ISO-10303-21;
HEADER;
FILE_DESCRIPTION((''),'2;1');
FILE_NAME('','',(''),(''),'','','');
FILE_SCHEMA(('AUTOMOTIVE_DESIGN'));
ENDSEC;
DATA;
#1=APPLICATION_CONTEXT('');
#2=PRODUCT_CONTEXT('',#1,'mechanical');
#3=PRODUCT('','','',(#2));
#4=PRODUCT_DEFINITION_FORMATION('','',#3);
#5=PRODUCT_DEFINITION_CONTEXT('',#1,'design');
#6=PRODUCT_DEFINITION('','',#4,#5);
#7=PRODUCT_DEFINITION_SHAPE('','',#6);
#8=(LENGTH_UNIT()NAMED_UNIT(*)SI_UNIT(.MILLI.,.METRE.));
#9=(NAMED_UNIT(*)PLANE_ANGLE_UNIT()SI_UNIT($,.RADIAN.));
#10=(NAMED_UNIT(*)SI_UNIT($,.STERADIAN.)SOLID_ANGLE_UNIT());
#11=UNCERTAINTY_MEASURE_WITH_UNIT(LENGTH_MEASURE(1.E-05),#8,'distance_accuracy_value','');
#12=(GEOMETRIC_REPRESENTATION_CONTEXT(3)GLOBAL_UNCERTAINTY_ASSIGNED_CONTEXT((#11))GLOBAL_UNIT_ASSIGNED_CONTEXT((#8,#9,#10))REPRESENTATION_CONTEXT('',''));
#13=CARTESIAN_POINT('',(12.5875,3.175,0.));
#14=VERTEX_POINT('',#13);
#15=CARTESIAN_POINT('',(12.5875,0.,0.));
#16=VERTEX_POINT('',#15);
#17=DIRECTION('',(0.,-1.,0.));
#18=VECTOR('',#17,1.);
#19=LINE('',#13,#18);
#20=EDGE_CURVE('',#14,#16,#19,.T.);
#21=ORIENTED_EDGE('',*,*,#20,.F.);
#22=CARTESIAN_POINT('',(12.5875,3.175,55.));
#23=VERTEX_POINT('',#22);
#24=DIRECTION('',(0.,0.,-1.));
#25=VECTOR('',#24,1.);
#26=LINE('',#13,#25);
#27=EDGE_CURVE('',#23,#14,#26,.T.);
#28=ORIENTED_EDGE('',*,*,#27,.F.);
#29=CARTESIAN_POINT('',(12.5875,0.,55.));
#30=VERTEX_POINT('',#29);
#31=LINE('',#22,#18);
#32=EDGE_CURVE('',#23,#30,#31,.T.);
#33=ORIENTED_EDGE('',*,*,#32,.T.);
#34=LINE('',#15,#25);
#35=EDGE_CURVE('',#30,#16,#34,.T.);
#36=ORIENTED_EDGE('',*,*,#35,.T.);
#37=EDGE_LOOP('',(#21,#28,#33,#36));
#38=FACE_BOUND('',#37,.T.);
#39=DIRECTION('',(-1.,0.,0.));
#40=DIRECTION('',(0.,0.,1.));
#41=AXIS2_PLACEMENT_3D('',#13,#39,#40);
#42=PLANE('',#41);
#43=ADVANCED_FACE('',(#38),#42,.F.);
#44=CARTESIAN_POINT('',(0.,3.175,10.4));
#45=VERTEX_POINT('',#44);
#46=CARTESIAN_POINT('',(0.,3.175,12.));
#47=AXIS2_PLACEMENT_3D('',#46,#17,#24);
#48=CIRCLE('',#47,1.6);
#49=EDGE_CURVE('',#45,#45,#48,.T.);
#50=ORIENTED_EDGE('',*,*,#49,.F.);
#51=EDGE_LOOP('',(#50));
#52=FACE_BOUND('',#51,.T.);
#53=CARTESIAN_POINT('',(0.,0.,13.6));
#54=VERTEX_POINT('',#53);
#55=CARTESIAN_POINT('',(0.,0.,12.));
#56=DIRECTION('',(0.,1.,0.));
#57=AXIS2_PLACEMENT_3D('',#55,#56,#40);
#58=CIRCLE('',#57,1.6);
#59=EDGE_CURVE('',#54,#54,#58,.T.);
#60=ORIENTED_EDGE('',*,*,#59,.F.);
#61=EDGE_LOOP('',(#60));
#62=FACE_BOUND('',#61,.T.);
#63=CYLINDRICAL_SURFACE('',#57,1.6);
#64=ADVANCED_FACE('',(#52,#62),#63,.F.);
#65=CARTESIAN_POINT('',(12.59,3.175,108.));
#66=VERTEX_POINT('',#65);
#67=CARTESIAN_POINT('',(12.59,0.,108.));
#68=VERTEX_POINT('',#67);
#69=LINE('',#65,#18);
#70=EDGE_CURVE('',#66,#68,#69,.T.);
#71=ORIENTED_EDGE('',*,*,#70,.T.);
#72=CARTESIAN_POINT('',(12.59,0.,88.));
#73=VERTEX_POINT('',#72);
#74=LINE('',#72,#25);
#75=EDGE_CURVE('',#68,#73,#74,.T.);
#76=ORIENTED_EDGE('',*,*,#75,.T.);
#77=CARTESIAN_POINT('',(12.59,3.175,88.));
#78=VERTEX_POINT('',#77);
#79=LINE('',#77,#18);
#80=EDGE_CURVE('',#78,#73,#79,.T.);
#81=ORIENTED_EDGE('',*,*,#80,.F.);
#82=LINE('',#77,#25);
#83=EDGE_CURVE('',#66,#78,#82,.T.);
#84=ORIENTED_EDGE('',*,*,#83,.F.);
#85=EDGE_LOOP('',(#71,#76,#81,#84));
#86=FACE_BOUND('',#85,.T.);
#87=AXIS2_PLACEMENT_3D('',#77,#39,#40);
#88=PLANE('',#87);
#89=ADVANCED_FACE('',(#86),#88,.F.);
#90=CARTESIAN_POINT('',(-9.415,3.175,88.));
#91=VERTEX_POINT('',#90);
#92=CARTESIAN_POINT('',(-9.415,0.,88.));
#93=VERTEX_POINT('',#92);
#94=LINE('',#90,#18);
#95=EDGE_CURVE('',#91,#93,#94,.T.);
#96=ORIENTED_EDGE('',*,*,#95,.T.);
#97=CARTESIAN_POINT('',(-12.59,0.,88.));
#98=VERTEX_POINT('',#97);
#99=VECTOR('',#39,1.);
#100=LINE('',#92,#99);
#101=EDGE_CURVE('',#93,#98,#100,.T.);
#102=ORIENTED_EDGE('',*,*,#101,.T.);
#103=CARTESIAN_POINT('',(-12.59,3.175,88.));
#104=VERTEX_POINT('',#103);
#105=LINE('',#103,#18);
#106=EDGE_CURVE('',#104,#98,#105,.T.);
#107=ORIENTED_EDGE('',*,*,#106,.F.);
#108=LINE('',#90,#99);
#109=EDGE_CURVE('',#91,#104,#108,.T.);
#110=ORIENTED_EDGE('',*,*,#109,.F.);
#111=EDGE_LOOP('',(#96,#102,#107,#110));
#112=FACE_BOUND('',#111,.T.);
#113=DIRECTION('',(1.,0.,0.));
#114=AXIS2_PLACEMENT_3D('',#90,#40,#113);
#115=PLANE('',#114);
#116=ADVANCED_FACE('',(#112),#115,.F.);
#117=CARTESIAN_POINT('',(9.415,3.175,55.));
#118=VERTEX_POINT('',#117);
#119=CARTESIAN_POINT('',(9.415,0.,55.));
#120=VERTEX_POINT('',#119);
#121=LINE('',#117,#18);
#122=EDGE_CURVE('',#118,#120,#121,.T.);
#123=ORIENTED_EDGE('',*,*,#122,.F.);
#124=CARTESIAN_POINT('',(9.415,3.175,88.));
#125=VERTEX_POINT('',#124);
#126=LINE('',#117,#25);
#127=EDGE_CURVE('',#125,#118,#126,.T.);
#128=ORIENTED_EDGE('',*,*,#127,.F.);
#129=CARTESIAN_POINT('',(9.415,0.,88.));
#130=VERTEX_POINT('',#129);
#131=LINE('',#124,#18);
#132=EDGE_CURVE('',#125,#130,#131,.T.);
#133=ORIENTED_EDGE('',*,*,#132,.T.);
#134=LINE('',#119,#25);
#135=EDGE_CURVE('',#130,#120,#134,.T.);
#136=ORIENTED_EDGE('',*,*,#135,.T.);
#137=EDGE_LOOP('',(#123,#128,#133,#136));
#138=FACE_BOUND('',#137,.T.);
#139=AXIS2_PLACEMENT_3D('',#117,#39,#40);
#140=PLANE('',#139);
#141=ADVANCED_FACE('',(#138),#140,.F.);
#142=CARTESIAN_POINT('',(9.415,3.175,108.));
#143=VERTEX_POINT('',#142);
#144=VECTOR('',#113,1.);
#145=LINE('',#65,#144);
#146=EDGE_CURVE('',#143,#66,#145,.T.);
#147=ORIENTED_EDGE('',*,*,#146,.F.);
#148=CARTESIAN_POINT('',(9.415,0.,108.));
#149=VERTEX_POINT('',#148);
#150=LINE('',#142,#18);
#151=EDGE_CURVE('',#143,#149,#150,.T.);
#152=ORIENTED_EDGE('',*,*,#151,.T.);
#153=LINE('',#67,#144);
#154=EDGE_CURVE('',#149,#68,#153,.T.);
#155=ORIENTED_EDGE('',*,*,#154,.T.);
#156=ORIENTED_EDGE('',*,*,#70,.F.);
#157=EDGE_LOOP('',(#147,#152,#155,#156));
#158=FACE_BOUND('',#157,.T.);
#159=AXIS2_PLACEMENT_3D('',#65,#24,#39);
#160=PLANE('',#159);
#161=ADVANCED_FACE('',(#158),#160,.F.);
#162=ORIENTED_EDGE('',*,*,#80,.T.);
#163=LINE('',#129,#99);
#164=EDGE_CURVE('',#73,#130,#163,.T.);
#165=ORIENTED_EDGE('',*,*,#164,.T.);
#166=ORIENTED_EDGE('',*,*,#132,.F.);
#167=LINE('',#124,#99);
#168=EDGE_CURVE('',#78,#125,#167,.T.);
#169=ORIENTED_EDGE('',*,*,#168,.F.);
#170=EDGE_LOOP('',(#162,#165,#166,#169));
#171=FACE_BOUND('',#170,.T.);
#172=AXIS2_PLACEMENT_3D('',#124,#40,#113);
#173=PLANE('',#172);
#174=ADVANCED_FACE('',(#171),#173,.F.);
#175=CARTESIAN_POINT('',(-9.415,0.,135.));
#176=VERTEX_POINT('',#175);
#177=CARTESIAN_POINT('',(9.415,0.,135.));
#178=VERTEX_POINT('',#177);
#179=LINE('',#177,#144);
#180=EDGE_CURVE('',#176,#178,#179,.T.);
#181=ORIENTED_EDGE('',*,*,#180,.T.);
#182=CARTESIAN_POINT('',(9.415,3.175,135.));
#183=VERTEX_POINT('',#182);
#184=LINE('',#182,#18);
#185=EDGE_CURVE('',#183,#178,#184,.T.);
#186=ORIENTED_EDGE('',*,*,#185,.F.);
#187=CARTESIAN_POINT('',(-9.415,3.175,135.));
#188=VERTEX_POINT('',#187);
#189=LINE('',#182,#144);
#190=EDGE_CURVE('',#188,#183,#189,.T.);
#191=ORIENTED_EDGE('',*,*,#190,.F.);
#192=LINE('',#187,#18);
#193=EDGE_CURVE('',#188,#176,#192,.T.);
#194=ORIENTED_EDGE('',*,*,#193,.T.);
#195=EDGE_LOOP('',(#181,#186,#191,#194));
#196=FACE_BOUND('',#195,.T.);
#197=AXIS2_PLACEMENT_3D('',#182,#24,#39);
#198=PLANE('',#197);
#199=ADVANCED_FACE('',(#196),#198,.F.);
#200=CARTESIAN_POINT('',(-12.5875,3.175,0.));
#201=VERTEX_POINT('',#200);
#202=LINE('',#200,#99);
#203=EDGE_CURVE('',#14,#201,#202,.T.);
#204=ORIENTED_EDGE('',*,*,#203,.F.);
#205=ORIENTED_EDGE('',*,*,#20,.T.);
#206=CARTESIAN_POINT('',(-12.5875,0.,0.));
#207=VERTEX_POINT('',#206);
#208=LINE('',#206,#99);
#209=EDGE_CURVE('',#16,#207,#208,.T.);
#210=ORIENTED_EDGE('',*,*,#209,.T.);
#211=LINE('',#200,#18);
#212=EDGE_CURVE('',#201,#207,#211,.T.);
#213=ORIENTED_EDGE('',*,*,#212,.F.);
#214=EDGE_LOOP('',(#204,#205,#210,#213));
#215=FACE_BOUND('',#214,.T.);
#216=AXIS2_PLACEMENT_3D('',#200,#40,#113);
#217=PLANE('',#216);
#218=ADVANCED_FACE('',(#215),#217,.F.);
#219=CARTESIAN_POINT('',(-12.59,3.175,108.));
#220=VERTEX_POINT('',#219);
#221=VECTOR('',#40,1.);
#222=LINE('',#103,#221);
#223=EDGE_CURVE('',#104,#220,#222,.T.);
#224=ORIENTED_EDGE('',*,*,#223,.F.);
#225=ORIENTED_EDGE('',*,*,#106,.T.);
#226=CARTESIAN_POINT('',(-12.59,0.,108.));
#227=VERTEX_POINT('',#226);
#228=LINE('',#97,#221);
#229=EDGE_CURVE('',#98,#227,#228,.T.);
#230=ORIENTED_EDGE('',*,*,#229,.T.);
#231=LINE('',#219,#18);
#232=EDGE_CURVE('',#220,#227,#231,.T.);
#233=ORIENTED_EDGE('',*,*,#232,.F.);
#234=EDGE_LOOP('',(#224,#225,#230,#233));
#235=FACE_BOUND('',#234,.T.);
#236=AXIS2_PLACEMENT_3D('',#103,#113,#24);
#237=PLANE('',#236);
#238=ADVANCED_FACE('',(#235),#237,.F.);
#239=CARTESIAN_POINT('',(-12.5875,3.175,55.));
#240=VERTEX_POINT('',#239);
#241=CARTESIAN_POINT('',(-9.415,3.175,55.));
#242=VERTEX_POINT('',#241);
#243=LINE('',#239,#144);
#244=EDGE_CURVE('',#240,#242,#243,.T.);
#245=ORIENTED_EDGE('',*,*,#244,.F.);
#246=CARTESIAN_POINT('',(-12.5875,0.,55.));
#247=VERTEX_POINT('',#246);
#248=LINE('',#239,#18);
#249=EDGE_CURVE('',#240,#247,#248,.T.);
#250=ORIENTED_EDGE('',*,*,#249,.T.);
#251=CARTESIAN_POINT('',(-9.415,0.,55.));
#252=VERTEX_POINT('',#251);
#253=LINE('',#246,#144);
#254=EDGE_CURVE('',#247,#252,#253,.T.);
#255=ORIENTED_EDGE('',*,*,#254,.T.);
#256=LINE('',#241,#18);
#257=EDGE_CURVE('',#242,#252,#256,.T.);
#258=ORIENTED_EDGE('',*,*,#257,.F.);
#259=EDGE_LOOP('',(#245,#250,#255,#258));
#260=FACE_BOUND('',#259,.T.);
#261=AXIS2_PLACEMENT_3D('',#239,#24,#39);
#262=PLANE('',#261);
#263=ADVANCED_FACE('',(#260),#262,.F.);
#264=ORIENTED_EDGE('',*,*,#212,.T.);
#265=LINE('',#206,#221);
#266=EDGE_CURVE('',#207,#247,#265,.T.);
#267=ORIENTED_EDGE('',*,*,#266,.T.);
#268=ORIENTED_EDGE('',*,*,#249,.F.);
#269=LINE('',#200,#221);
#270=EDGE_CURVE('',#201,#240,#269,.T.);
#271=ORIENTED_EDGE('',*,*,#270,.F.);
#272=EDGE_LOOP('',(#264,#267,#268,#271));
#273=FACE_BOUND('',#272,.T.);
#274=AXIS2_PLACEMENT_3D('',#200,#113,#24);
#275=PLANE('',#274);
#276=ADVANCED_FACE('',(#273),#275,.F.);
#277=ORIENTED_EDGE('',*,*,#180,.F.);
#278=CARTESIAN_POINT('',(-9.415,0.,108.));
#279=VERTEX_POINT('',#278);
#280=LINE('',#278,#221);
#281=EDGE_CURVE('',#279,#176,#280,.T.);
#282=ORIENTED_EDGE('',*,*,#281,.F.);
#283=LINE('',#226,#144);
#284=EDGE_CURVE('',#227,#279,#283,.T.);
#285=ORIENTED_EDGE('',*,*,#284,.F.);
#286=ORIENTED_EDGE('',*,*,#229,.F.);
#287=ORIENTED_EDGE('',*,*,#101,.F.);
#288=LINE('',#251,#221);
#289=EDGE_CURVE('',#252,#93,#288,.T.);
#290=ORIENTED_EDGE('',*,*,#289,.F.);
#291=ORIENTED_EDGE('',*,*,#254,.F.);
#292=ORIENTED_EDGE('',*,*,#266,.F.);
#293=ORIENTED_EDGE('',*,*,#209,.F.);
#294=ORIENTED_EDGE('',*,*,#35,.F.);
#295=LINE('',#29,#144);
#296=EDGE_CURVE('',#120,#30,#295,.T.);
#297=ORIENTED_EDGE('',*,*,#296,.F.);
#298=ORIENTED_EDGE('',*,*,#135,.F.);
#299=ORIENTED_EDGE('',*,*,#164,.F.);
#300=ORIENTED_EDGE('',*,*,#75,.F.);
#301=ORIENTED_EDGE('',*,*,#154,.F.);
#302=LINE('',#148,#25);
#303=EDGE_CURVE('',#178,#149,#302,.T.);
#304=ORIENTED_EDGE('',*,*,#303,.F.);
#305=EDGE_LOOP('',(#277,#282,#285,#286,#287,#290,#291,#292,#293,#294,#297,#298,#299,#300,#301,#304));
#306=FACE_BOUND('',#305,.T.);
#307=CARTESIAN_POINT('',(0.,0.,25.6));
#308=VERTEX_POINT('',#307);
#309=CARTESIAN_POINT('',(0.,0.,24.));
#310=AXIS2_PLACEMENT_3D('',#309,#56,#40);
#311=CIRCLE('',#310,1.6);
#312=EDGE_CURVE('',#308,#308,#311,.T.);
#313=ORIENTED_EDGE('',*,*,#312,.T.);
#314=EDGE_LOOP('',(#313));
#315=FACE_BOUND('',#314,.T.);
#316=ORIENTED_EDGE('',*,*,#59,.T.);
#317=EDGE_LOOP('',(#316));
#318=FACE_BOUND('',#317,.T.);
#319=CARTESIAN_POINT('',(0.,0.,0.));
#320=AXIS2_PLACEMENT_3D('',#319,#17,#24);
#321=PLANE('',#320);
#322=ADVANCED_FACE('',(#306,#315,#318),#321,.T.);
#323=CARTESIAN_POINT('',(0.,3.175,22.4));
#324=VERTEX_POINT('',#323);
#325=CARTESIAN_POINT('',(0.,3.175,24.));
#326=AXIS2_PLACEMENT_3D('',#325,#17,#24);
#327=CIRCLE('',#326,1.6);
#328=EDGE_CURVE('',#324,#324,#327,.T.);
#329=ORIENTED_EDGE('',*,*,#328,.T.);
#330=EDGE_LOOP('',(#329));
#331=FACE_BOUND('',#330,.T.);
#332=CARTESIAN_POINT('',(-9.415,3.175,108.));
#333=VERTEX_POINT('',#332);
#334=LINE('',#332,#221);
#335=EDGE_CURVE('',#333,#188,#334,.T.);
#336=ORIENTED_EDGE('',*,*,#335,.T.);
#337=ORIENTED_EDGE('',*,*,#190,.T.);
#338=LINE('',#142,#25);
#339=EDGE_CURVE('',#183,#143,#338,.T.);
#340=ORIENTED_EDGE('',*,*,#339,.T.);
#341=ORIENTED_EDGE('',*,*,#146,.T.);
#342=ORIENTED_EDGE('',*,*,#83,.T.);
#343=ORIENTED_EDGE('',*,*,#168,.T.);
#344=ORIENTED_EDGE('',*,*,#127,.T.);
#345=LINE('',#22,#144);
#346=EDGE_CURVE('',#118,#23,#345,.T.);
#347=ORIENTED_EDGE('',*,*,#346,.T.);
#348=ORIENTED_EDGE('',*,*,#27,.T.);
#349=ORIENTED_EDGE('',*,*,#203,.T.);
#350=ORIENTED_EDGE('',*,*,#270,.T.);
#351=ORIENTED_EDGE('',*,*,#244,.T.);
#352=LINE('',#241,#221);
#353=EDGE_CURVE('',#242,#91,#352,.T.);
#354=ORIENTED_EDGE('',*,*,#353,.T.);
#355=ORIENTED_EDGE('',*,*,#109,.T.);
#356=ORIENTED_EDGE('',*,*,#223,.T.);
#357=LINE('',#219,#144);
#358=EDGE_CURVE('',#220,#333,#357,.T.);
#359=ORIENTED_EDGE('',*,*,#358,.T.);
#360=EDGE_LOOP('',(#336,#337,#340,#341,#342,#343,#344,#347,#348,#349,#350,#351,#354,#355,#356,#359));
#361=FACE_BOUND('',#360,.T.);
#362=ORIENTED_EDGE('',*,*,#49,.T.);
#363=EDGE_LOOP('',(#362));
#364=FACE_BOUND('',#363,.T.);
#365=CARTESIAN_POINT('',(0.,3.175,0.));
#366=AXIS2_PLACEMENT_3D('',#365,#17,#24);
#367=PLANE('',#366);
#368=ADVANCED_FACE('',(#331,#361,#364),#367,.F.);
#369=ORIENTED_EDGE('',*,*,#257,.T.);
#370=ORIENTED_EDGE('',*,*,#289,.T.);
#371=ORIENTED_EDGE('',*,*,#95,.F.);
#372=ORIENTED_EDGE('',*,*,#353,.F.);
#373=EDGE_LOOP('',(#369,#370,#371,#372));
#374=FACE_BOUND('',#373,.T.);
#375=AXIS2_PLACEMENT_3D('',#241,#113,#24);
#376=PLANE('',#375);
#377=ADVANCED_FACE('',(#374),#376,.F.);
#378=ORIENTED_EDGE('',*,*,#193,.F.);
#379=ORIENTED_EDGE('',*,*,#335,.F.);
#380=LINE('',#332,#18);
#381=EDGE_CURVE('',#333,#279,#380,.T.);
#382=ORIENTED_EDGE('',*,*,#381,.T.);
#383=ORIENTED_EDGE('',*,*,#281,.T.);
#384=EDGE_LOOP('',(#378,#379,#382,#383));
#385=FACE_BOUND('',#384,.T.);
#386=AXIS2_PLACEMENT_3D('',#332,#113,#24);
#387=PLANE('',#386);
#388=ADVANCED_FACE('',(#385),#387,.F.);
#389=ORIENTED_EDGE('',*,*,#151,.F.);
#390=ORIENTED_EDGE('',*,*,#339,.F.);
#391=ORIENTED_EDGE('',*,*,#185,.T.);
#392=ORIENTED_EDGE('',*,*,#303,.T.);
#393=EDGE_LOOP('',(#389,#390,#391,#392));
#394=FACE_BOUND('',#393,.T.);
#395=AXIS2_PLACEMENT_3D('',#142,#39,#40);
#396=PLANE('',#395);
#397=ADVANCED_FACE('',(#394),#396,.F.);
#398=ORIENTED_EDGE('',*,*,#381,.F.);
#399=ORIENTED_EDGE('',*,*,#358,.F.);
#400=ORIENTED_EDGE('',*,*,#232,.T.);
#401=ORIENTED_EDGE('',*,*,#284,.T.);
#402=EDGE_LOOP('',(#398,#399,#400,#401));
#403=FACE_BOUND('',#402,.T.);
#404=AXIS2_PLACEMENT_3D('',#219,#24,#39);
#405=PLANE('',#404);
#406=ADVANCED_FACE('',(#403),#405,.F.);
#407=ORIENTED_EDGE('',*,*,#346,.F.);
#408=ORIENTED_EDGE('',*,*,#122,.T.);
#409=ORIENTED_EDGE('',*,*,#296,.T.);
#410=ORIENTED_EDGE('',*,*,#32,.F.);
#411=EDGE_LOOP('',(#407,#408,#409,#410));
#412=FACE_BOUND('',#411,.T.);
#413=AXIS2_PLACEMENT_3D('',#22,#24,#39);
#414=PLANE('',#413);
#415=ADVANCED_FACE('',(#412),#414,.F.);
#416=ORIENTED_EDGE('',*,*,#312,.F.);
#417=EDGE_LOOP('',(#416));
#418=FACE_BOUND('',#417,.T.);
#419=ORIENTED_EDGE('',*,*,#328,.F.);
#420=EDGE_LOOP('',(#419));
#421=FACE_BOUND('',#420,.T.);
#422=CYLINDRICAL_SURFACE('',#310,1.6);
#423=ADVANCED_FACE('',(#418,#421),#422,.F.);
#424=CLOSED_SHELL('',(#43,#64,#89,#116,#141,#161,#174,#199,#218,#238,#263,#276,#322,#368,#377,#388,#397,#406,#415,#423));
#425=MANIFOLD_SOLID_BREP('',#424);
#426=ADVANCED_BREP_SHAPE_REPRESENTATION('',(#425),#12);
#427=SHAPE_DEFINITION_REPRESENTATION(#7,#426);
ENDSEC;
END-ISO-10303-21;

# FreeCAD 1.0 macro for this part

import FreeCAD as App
import Part
import Sketcher
Q = App.Units.Quantity

doc = App.newDocument("Part")
body = doc.addObject("PartDesign::Body", "Body")

# Sketch on XZ plane
sketch1 = body.newObject("Sketcher::SketchObject", "Sketch")
sketch1.AttachmentSupport = (doc.getObject("XZ_Plane"), [""])
sketch1.MapMode = "FlatFace"
sketch1.addGeometry(Part.LineSegment(App.Vector(12.6, 0, 0), App.Vector(-12.6, 0, 0)), False)
sketch1.addGeometry(Part.LineSegment(App.Vector(-12.6, 0, 0), App.Vector(-12.6, 55, 0)), False)
sketch1.addGeometry(Part.LineSegment(App.Vector(-12.6, 55, 0), App.Vector(-9.4, 55, 0)), False)
sketch1.addGeometry(Part.LineSegment(App.Vector(-9.4, 55, 0), App.Vector(-9.4, 88, 0)), False)
sketch1.addGeometry(Part.LineSegment(App.Vector(-9.4, 88, 0), App.Vector(-12.6, 88, 0)), False)
sketch1.addGeometry(Part.LineSegment(App.Vector(-12.6, 88, 0), App.Vector(-12.6, 108, 0)), False)
sketch1.addGeometry(Part.LineSegment(App.Vector(-12.6, 108, 0), App.Vector(-9.4, 108, 0)), False)
sketch1.addGeometry(Part.LineSegment(App.Vector(-9.4, 108, 0), App.Vector(-9.4, 135, 0)), False)
sketch1.addGeometry(Part.LineSegment(App.Vector(-9.4, 135, 0), App.Vector(9.4, 135, 0)), False)
sketch1.addGeometry(Part.LineSegment(App.Vector(9.4, 135, 0), App.Vector(9.4, 108, 0)), False)
sketch1.addGeometry(Part.LineSegment(App.Vector(9.4, 108, 0), App.Vector(12.6, 108, 0)), False)
sketch1.addGeometry(Part.LineSegment(App.Vector(12.6, 108, 0), App.Vector(12.6, 88, 0)), False)
sketch1.addGeometry(Part.LineSegment(App.Vector(12.6, 88, 0), App.Vector(9.4, 88, 0)), False)
sketch1.addGeometry(Part.LineSegment(App.Vector(9.4, 88, 0), App.Vector(9.4, 55, 0)), False)
sketch1.addGeometry(Part.LineSegment(App.Vector(9.4, 55, 0), App.Vector(12.6, 55, 0)), False)
sketch1.addGeometry(Part.LineSegment(App.Vector(12.6, 55, 0), App.Vector(12.6, 0, 0)), False)
sketch1.addConstraint(Sketcher.Constraint("Coincident", 0, 2, 1, 1))
sketch1.addConstraint(Sketcher.Constraint("Coincident", 1, 2, 2, 1))
sketch1.addConstraint(Sketcher.Constraint("Coincident", 2, 2, 3, 1))
sketch1.addConstraint(Sketcher.Constraint("Coincident", 3, 2, 4, 1))
sketch1.addConstraint(Sketcher.Constraint("Coincident", 4, 2, 5, 1))
sketch1.addConstraint(Sketcher.Constraint("Coincident", 5, 2, 6, 1))
sketch1.addConstraint(Sketcher.Constraint("Coincident", 6, 2, 7, 1))
sketch1.addConstraint(Sketcher.Constraint("Coincident", 7, 2, 8, 1))
sketch1.addConstraint(Sketcher.Constraint("Coincident", 8, 2, 9, 1))
sketch1.addConstraint(Sketcher.Constraint("Coincident", 9, 2, 10, 1))
sketch1.addConstraint(Sketcher.Constraint("Coincident", 10, 2, 11, 1))
sketch1.addConstraint(Sketcher.Constraint("Coincident", 11, 2, 12, 1))
sketch1.addConstraint(Sketcher.Constraint("Coincident", 12, 2, 13, 1))
sketch1.addConstraint(Sketcher.Constraint("Coincident", 13, 2, 14, 1))
sketch1.addConstraint(Sketcher.Constraint("Coincident", 14, 2, 15, 1))
sketch1.addConstraint(Sketcher.Constraint("Coincident", 15, 2, 0, 1))
sketch1.addConstraint(Sketcher.Constraint("Horizontal", 0))
sketch1.addConstraint(Sketcher.Constraint("Vertical", 1))
sketch1.addConstraint(Sketcher.Constraint("Horizontal", 2))
sketch1.addConstraint(Sketcher.Constraint("Vertical", 3))
sketch1.addConstraint(Sketcher.Constraint("Horizontal", 4))
sketch1.addConstraint(Sketcher.Constraint("Vertical", 5))
sketch1.addConstraint(Sketcher.Constraint("Horizontal", 6))
sketch1.addConstraint(Sketcher.Constraint("Vertical", 7))
sketch1.addConstraint(Sketcher.Constraint("Horizontal", 8))
sketch1.addConstraint(Sketcher.Constraint("Vertical", 9))
sketch1.addConstraint(Sketcher.Constraint("Horizontal", 10))
sketch1.addConstraint(Sketcher.Constraint("Vertical", 11))
sketch1.addConstraint(Sketcher.Constraint("Horizontal", 12))
sketch1.addConstraint(Sketcher.Constraint("Vertical", 13))
sketch1.addConstraint(Sketcher.Constraint("Horizontal", 14))
sketch1.addConstraint(Sketcher.Constraint("Vertical", 15))
sketch1.addConstraint(Sketcher.Constraint("Symmetric", 0, 2, 15, 2, -1, 1))
sketch1.addConstraint(Sketcher.Constraint("Symmetric", 6, 2, 9, 2, -2))
sketch1.addConstraint(Sketcher.Constraint("Symmetric", 4, 2, 11, 2, -2))
sketch1.addConstraint(Sketcher.Constraint("Symmetric", 2, 2, 13, 2, -2))
sketch1.addConstraint(Sketcher.Constraint("Vertical", 3, 2, 6, 2))
sketch1.addConstraint(Sketcher.Constraint("DistanceY", 1, 1, 1, 2, Q("55 mm")))
sketch1.addConstraint(Sketcher.Constraint("DistanceY", 3, 1, 3, 2, Q("33 mm")))
sketch1.addConstraint(Sketcher.Constraint("DistanceY", 5, 1, 5, 2, Q("20 mm")))
sketch1.addConstraint(Sketcher.Constraint("DistanceY", 7, 1, 7, 2, Q("27 mm")))
sketch1.addConstraint(Sketcher.Constraint("DistanceX", 8, 1, 8, 2, Q("18.83 mm")))
sketch1.addConstraint(Sketcher.Constraint("DistanceX", 0, 2, 0, 1, Q("25.175 mm")))
sketch1.addConstraint(Sketcher.Constraint("DistanceX", 4, 2, 4, 1, Q("3.175 mm")))
pad1 = body.newObject("PartDesign::Pad", "Pad")
pad1.Profile = sketch1
pad1.Length = 3.175
pad1.Reversed = True

# Sketch on XZ plane
sketch2 = body.newObject("Sketcher::SketchObject", "Sketch001")
sketch2.AttachmentSupport = (doc.getObject("XZ_Plane"), [""])
sketch2.MapMode = "FlatFace"
sketch2.AttachmentOffset = App.Placement(App.Vector(0, 0, -3.175), App.Rotation())
sketch2.addGeometry(Part.Circle(App.Vector(0, 24, 0), App.Vector(0, 0, 1), 1.6), False)
sketch2.addGeometry(Part.Circle(App.Vector(0, 12, 0), App.Vector(0, 0, 1), 1.6), False)
sketch2.addConstraint(Sketcher.Constraint("Equal", 0, 1))
sketch2.addConstraint(Sketcher.Constraint("PointOnObject", 0, 3, -2))
sketch2.addConstraint(Sketcher.Constraint("PointOnObject", 1, 3, -2))
sketch2.addConstraint(Sketcher.Constraint("Diameter", 0, Q("3.2 mm")))
sketch2.addConstraint(Sketcher.Constraint("DistanceY", -1, 1, 0, 3, Q("24 mm")))
sketch2.addConstraint(Sketcher.Constraint("DistanceY", -1, 1, 1, 3, Q("12 mm")))
pocket1 = body.newObject("PartDesign::Pocket", "Pocket")
pocket1.Profile = sketch2
pocket1.Type = "ThroughAll"
pocket1.Midplane = True

doc.recompute()
